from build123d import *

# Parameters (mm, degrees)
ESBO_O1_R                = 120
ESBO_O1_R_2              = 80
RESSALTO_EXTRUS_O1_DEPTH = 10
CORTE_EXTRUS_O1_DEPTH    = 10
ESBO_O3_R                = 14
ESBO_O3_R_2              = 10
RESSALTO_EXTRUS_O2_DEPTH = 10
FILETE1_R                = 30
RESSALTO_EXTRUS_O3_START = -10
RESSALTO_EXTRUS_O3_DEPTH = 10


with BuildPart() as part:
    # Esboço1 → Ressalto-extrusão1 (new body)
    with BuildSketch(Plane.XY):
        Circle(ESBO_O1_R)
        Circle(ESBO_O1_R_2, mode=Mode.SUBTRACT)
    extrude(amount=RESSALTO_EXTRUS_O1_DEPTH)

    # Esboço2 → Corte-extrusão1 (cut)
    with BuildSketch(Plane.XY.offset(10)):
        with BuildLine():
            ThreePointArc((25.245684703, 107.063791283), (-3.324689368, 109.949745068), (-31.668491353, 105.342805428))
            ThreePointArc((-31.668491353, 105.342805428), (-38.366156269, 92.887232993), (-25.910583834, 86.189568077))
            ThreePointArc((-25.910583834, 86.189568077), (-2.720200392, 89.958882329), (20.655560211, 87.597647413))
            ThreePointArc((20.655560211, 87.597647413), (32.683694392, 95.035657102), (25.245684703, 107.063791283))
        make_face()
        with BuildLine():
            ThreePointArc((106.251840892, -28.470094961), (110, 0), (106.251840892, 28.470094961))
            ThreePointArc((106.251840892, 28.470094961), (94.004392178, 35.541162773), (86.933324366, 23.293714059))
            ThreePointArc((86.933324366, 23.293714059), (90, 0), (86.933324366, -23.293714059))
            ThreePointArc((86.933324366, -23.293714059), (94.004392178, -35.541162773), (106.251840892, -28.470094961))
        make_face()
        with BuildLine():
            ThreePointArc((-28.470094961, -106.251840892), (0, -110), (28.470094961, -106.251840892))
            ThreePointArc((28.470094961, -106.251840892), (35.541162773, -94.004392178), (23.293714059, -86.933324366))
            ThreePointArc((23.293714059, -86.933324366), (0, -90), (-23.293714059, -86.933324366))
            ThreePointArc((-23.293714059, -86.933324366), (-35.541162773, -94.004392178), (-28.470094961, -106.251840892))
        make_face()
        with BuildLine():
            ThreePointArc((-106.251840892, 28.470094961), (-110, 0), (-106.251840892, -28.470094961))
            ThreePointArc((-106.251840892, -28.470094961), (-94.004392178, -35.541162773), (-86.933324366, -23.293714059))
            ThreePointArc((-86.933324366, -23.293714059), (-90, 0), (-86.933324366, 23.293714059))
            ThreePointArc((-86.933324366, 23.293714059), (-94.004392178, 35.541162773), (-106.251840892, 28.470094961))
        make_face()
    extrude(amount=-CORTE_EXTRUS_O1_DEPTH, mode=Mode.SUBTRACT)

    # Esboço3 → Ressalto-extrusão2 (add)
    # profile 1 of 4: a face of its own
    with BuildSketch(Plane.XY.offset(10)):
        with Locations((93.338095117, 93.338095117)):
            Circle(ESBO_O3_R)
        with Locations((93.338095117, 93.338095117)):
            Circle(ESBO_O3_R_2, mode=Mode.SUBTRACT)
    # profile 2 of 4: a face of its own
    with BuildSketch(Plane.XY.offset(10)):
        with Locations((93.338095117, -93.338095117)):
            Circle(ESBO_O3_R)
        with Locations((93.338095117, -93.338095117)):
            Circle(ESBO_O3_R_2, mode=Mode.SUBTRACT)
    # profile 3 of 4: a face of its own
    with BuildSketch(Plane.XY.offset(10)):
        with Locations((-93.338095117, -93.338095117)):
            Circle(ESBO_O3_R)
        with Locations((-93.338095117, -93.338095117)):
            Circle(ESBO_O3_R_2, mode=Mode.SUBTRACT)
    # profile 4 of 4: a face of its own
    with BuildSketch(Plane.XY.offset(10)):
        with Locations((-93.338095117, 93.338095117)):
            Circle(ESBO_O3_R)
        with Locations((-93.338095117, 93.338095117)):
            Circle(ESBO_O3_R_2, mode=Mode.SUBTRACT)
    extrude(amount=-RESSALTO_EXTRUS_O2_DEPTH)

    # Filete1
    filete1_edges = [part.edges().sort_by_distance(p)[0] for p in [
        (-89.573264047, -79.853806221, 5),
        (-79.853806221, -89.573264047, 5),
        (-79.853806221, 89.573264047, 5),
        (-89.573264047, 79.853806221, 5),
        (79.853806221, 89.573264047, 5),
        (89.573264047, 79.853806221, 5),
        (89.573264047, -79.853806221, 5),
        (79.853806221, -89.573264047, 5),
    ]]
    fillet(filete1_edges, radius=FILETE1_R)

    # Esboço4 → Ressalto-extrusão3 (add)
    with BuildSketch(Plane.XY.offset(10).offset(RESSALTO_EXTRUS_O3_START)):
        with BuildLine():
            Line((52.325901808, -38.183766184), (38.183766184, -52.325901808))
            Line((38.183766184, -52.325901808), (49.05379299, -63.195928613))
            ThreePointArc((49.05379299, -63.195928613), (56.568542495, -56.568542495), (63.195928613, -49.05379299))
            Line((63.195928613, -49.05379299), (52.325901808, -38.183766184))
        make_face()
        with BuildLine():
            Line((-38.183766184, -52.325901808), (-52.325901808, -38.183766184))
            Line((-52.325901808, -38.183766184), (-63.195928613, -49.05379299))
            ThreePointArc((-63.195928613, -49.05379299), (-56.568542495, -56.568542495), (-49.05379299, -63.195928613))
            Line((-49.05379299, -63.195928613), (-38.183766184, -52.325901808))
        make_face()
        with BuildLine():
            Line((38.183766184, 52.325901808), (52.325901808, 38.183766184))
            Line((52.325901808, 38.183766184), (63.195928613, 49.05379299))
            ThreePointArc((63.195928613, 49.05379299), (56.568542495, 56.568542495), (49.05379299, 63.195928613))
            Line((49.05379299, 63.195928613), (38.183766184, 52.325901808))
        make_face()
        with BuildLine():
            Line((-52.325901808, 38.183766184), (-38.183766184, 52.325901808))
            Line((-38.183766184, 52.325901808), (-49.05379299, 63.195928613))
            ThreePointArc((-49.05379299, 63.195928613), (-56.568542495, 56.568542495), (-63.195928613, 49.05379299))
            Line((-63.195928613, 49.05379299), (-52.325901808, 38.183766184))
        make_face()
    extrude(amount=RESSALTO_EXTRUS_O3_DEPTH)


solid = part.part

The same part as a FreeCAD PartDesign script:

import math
import FreeCAD as App
import Part
import Sketcher

V = App.Vector


def edges_at(feature, points):
    """Names of the edges that pass closest to the given points."""
    edges = feature.Shape.Edges
    near = lambda p: min(range(len(edges)), key=lambda i: edges[i].distToShape(Part.Vertex(*p))[0])
    return sorted({f"Edge{near(p) + 1}" for p in points})

doc = App.newDocument("Part")
body = doc.addObject("PartDesign::Body", "Body")

# Sketch on XY plane
sketch1 = body.newObject("Sketcher::SketchObject", "Sketch")
sketch1.AttachmentSupport = (doc.getObject("XY_Plane"), [""])
sketch1.MapMode = "FlatFace"
sketch1.addGeometry([
    Part.Circle(V(0, 0, 0), V(0, 0, 1), 120),
    Part.Circle(V(0, 0, 0), V(0, 0, 1), 80),
], False)
sketch1.addConstraint([
    Sketcher.Constraint("Coincident", 0, 3, -1, 1),
    Sketcher.Constraint("Coincident", 1, 3, -1, 1),
    Sketcher.Constraint("Diameter", 0, 240.0),
    Sketcher.Constraint("Diameter", 1, 160.0),
])
pad1 = body.newObject("PartDesign::Pad", "Pad")
pad1.Profile = sketch1
pad1.Length = 10

# Sketch on XY plane
sketch2 = body.newObject("Sketcher::SketchObject", "Sketch001")
sketch2.AttachmentSupport = (doc.getObject("XY_Plane"), [""])
sketch2.MapMode = "FlatFace"
sketch2.AttachmentOffset = App.Placement(V(0, 0, 10), App.Rotation())
sketch2.addGeometry([
    Part.ArcOfCircle(Part.Circle(V(0, 0, 0), V(0, 0, 1), 110), math.radians(77), math.radians(107)),  # 0
    Part.ArcOfCircle(Part.Circle(V(-29, 96, 0), V(0, 0, 1), 10), math.radians(107), math.radians(287)),  # 1
    Part.ArcOfCircle(Part.Circle(V(0, 0, 0), V(0, 0, 1), 90), math.radians(77), math.radians(107)),  # 2
    Part.ArcOfCircle(Part.Circle(V(23, 97, 0), V(0, 0, 1), 10), math.radians(-103), math.radians(77)),  # 3
    Part.ArcOfCircle(Part.Circle(V(0, 0, 0), V(0, 0, 1), 110), math.radians(-15), math.radians(15)),  # 4
    Part.ArcOfCircle(Part.Circle(V(97, 26, 0), V(0, 0, 1), 10), math.radians(15), math.radians(195)),  # 5
    Part.ArcOfCircle(Part.Circle(V(0, 0, 0), V(0, 0, 1), 90), math.radians(-15), math.radians(15)),  # 6
    Part.ArcOfCircle(Part.Circle(V(97, -26, 0), V(0, 0, 1), 10), math.radians(165), math.radians(345)),  # 7
    Part.ArcOfCircle(Part.Circle(V(0, 0, 0), V(0, 0, 1), 110), math.radians(-105), math.radians(-75)),  # 8
    Part.ArcOfCircle(Part.Circle(V(26, -97, 0), V(0, 0, 1), 10), math.radians(-75), math.radians(105)),  # 9
    Part.ArcOfCircle(Part.Circle(V(0, 0, 0), V(0, 0, 1), 90), math.radians(-105), math.radians(-75)),  # 10
    Part.ArcOfCircle(Part.Circle(V(-26, -97, 0), V(0, 0, 1), 10), math.radians(75), math.radians(255)),  # 11
    Part.ArcOfCircle(Part.Circle(V(0, 0, 0), V(0, 0, 1), 110), math.radians(165), math.radians(195)),  # 12
    Part.ArcOfCircle(Part.Circle(V(-97, -26, 0), V(0, 0, 1), 10), math.radians(-165), math.radians(15)),  # 13
    Part.ArcOfCircle(Part.Circle(V(0, 0, 0), V(0, 0, 1), 90), math.radians(165), math.radians(195)),  # 14
    Part.ArcOfCircle(Part.Circle(V(-97, 26, 0), V(0, 0, 1), 10), math.radians(-15), math.radians(165)),  # 15
], False)
sketch2.addConstraint([
    Sketcher.Constraint("Tangent", 0, 2, 1, 1),
    Sketcher.Constraint("Tangent", 1, 2, 2, 2),
    Sketcher.Constraint("Tangent", 2, 1, 3, 1),
    Sketcher.Constraint("Tangent", 3, 2, 0, 1),
    Sketcher.Constraint("Tangent", 4, 2, 5, 1),
    Sketcher.Constraint("Tangent", 5, 2, 6, 2),
    Sketcher.Constraint("Tangent", 6, 1, 7, 1),
    Sketcher.Constraint("Tangent", 7, 2, 4, 1),
    Sketcher.Constraint("Tangent", 8, 2, 9, 1),
    Sketcher.Constraint("Tangent", 9, 2, 10, 2),
    Sketcher.Constraint("Tangent", 10, 1, 11, 1),
    Sketcher.Constraint("Tangent", 11, 2, 8, 1),
    Sketcher.Constraint("Tangent", 12, 2, 13, 1),
    Sketcher.Constraint("Tangent", 13, 2, 14, 2),
    Sketcher.Constraint("Tangent", 14, 1, 15, 1),
    Sketcher.Constraint("Tangent", 15, 2, 12, 1),
    Sketcher.Constraint("Coincident", 0, 3, -1, 1),
    Sketcher.Constraint("Coincident", 2, 3, -1, 1),
    Sketcher.Constraint("Coincident", 4, 3, -1, 1),
    Sketcher.Constraint("Coincident", 6, 3, -1, 1),
    Sketcher.Constraint("Coincident", 8, 3, -1, 1),
    Sketcher.Constraint("Coincident", 10, 3, -1, 1),
    Sketcher.Constraint("Coincident", 12, 3, -1, 1),
    Sketcher.Constraint("Coincident", 14, 3, -1, 1),
    Sketcher.Constraint("Equal", 0, 4),
    Sketcher.Constraint("Equal", 3, 5),
    Sketcher.Constraint("Equal", 4, 8),
    Sketcher.Constraint("Equal", 7, 9),
    Sketcher.Constraint("Equal", 8, 12),
    Sketcher.Constraint("Equal", 11, 13),
    Sketcher.Constraint("Horizontal", 9, 3, 11, 3),
    Sketcher.Constraint("Horizontal", 7, 3, 13, 3),
    Sketcher.Constraint("Horizontal", 5, 3, 15, 3),
    Sketcher.Constraint("Vertical", 5, 3, 7, 3),
    Sketcher.Constraint("Radius", 0, 110.0),
    Sketcher.Constraint("Radius", 1, 10.0),
    Sketcher.Constraint("DistanceY", 7, 3, 4, 2, 54.351999),
    Sketcher.Constraint("DistanceX", 11, 3, 8, 2, 54.351999),
    Sketcher.Constraint("DistanceY", 15, 3, 0, 2, 79.460901),
    Sketcher.Constraint("DistanceY", -1, 1, 3, 3, 97.330719),
])
pocket1 = body.newObject("PartDesign::Pocket", "Pocket")
pocket1.Profile = sketch2
pocket1.Length = 10

# Sketch on XY plane
sketch3 = body.newObject("Sketcher::SketchObject", "Sketch002")
sketch3.AttachmentSupport = (doc.getObject("XY_Plane"), [""])
sketch3.MapMode = "FlatFace"
sketch3.AttachmentOffset = App.Placement(V(0, 0, 10), App.Rotation())
sketch3.addGeometry([
    Part.Circle(V(93, 93, 0), V(0, 0, 1), 14),  # 0
    Part.Circle(V(93, 93, 0), V(0, 0, 1), 10),  # 1
    Part.Circle(V(93, -93, 0), V(0, 0, 1), 14),  # 2
    Part.Circle(V(93, -93, 0), V(0, 0, 1), 10),  # 3
    Part.Circle(V(-93, -93, 0), V(0, 0, 1), 14),  # 4
    Part.Circle(V(-93, -93, 0), V(0, 0, 1), 10),  # 5
    Part.Circle(V(-93, 93, 0), V(0, 0, 1), 14),  # 6
    Part.Circle(V(-93, 93, 0), V(0, 0, 1), 10),  # 7
], False)
sketch3.addConstraint([
    Sketcher.Constraint("Coincident", 1, 3, 0, 3),
    Sketcher.Constraint("Coincident", 3, 3, 2, 3),
    Sketcher.Constraint("Coincident", 5, 3, 4, 3),
    Sketcher.Constraint("Coincident", 7, 3, 6, 3),
    Sketcher.Constraint("Equal", 0, 2),
    Sketcher.Constraint("Equal", 1, 3),
    Sketcher.Constraint("Equal", 2, 4),
    Sketcher.Constraint("Equal", 3, 5),
    Sketcher.Constraint("Equal", 4, 6),
    Sketcher.Constraint("Equal", 5, 7),
    Sketcher.Constraint("Symmetric", 0, 3, 4, 3, -1, 1),
    Sketcher.Constraint("Symmetric", 2, 3, 6, 3, -1, 1),
    Sketcher.Constraint("Symmetric", 2, 3, 4, 3, -2),
    Sketcher.Constraint("Diameter", 0, 28.0),
    Sketcher.Constraint("Diameter", 1, 20.0),
    Sketcher.Constraint("DistanceY", 2, 3, 0, 3, 186.67619),
    Sketcher.Constraint("DistanceX", 4, 3, 2, 3, 186.67619),
])
pad2 = body.newObject("PartDesign::Pad", "Pad001")
pad2.Profile = sketch3
pad2.Length = 10
pad2.Reversed = True
doc.recompute()

fillet = body.newObject("PartDesign::Fillet", "Fillet")
fillet.Base = (pad2, edges_at(pad2, [
    (-89.573, -79.854, 5),
    (-79.854, -89.573, 5),
    (-79.854, 89.573, 5),
    (-89.573, 79.854, 5),
    (79.854, 89.573, 5),
    (89.573, 79.854, 5),
    (89.573, -79.854, 5),
    (79.854, -89.573, 5),
]))
fillet.Radius = 30

# Sketch on XY plane
sketch4 = body.newObject("Sketcher::SketchObject", "Sketch003")
sketch4.AttachmentSupport = (doc.getObject("XY_Plane"), [""])
sketch4.MapMode = "FlatFace"
sketch4.addGeometry([
    Part.LineSegment(V(52, -38, 0), V(38, -52, 0)),  # 0
    Part.LineSegment(V(38, -52, 0), V(49, -63, 0)),  # 1
    Part.ArcOfCircle(Part.Circle(V(0, 0, 0), V(0, 0, 1), 80), math.radians(-52.18), math.radians(-37.82)),  # 2
    Part.LineSegment(V(63, -49, 0), V(52, -38, 0)),  # 3
    Part.LineSegment(V(-38, -52, 0), V(-52, -38, 0)),  # 4
    Part.LineSegment(V(-52, -38, 0), V(-63, -49, 0)),  # 5
    Part.ArcOfCircle(Part.Circle(V(0, 0, 0), V(0, 0, 1), 80), math.radians(-142.18), math.radians(-127.82)),  # 6
    Part.LineSegment(V(-49, -63, 0), V(-38, -52, 0)),  # 7
    Part.LineSegment(V(38, 52, 0), V(52, 38, 0)),  # 8
    Part.LineSegment(V(52, 38, 0), V(63, 49, 0)),  # 9
    Part.ArcOfCircle(Part.Circle(V(0, 0, 0), V(0, 0, 1), 80), math.radians(37.82), math.radians(52.18)),  # 10
    Part.LineSegment(V(49, 63, 0), V(38, 52, 0)),  # 11
    Part.LineSegment(V(-52, 38, 0), V(-38, 52, 0)),  # 12
    Part.LineSegment(V(-38, 52, 0), V(-49, 63, 0)),  # 13
    Part.ArcOfCircle(Part.Circle(V(0, 0, 0), V(0, 0, 1), 80), math.radians(127.82), math.radians(142.18)),  # 14
    Part.LineSegment(V(-63, 49, 0), V(-52, 38, 0)),  # 15
], False)
sketch4.addConstraint([
    Sketcher.Constraint("Coincident", 0, 2, 1, 1),
    Sketcher.Constraint("Coincident", 1, 2, 2, 1),
    Sketcher.Constraint("Coincident", 2, 2, 3, 1),
    Sketcher.Constraint("Coincident", 3, 2, 0, 1),
    Sketcher.Constraint("Coincident", 4, 2, 5, 1),
    Sketcher.Constraint("Coincident", 5, 2, 6, 1),
    Sketcher.Constraint("Coincident", 6, 2, 7, 1),
    Sketcher.Constraint("Coincident", 7, 2, 4, 1),
    Sketcher.Constraint("Coincident", 8, 2, 9, 1),
    Sketcher.Constraint("Coincident", 9, 2, 10, 1),
    Sketcher.Constraint("Coincident", 10, 2, 11, 1),
    Sketcher.Constraint("Coincident", 11, 2, 8, 1),
    Sketcher.Constraint("Coincident", 12, 2, 13, 1),
    Sketcher.Constraint("Coincident", 13, 2, 14, 1),
    Sketcher.Constraint("Coincident", 14, 2, 15, 1),
    Sketcher.Constraint("Coincident", 15, 2, 12, 1),
    Sketcher.Constraint("Coincident", 2, 3, -1, 1),
    Sketcher.Constraint("Coincident", 6, 3, -1, 1),
    Sketcher.Constraint("Coincident", 10, 3, -1, 1),
    Sketcher.Constraint("Coincident", 14, 3, -1, 1),
    Sketcher.Constraint("Equal", 2, 6),
    Sketcher.Constraint("Equal", 6, 10),
    Sketcher.Constraint("Equal", 10, 14),
    Sketcher.Constraint("Symmetric", 4, 2, 8, 2, -1, 1),
    Sketcher.Constraint("Symmetric", 7, 2, 11, 2, -1, 1),
    Sketcher.Constraint("Symmetric", 0, 2, 12, 2, -1, 1),
    Sketcher.Constraint("Symmetric", 3, 2, 15, 2, -1, 1),
    Sketcher.Constraint("Symmetric", 3, 2, 4, 2, -2),
    Sketcher.Constraint("Symmetric", 0, 2, 7, 2, -2),
    Sketcher.Constraint("Perpendicular", 0, 1),
    Sketcher.Constraint("Parallel", 1, 3),
    Sketcher.Constraint("Parallel", 3, 4),
    Sketcher.Constraint("Perpendicular", 4, 5),
    Sketcher.Constraint("Parallel", 5, 7),
    Sketcher.Constraint("Perpendicular", 8, 9),
    Sketcher.Constraint("Parallel", 9, 11),
    Sketcher.Constraint("Perpendicular", 12, 13),
    Sketcher.Constraint("Parallel", 13, 15),
    Sketcher.Constraint("Equal", 1, 3),
    Sketcher.Constraint("Radius", 2, 80.0),
    Sketcher.Constraint("Distance", 0, 20.0),
    Sketcher.Constraint("DistanceY", 0, 2, -1, 1, 52.325902),
])
pad3 = body.newObject("PartDesign::Pad", "Pad002")
pad3.Profile = sketch4
pad3.Length = 10

doc.recompute()
